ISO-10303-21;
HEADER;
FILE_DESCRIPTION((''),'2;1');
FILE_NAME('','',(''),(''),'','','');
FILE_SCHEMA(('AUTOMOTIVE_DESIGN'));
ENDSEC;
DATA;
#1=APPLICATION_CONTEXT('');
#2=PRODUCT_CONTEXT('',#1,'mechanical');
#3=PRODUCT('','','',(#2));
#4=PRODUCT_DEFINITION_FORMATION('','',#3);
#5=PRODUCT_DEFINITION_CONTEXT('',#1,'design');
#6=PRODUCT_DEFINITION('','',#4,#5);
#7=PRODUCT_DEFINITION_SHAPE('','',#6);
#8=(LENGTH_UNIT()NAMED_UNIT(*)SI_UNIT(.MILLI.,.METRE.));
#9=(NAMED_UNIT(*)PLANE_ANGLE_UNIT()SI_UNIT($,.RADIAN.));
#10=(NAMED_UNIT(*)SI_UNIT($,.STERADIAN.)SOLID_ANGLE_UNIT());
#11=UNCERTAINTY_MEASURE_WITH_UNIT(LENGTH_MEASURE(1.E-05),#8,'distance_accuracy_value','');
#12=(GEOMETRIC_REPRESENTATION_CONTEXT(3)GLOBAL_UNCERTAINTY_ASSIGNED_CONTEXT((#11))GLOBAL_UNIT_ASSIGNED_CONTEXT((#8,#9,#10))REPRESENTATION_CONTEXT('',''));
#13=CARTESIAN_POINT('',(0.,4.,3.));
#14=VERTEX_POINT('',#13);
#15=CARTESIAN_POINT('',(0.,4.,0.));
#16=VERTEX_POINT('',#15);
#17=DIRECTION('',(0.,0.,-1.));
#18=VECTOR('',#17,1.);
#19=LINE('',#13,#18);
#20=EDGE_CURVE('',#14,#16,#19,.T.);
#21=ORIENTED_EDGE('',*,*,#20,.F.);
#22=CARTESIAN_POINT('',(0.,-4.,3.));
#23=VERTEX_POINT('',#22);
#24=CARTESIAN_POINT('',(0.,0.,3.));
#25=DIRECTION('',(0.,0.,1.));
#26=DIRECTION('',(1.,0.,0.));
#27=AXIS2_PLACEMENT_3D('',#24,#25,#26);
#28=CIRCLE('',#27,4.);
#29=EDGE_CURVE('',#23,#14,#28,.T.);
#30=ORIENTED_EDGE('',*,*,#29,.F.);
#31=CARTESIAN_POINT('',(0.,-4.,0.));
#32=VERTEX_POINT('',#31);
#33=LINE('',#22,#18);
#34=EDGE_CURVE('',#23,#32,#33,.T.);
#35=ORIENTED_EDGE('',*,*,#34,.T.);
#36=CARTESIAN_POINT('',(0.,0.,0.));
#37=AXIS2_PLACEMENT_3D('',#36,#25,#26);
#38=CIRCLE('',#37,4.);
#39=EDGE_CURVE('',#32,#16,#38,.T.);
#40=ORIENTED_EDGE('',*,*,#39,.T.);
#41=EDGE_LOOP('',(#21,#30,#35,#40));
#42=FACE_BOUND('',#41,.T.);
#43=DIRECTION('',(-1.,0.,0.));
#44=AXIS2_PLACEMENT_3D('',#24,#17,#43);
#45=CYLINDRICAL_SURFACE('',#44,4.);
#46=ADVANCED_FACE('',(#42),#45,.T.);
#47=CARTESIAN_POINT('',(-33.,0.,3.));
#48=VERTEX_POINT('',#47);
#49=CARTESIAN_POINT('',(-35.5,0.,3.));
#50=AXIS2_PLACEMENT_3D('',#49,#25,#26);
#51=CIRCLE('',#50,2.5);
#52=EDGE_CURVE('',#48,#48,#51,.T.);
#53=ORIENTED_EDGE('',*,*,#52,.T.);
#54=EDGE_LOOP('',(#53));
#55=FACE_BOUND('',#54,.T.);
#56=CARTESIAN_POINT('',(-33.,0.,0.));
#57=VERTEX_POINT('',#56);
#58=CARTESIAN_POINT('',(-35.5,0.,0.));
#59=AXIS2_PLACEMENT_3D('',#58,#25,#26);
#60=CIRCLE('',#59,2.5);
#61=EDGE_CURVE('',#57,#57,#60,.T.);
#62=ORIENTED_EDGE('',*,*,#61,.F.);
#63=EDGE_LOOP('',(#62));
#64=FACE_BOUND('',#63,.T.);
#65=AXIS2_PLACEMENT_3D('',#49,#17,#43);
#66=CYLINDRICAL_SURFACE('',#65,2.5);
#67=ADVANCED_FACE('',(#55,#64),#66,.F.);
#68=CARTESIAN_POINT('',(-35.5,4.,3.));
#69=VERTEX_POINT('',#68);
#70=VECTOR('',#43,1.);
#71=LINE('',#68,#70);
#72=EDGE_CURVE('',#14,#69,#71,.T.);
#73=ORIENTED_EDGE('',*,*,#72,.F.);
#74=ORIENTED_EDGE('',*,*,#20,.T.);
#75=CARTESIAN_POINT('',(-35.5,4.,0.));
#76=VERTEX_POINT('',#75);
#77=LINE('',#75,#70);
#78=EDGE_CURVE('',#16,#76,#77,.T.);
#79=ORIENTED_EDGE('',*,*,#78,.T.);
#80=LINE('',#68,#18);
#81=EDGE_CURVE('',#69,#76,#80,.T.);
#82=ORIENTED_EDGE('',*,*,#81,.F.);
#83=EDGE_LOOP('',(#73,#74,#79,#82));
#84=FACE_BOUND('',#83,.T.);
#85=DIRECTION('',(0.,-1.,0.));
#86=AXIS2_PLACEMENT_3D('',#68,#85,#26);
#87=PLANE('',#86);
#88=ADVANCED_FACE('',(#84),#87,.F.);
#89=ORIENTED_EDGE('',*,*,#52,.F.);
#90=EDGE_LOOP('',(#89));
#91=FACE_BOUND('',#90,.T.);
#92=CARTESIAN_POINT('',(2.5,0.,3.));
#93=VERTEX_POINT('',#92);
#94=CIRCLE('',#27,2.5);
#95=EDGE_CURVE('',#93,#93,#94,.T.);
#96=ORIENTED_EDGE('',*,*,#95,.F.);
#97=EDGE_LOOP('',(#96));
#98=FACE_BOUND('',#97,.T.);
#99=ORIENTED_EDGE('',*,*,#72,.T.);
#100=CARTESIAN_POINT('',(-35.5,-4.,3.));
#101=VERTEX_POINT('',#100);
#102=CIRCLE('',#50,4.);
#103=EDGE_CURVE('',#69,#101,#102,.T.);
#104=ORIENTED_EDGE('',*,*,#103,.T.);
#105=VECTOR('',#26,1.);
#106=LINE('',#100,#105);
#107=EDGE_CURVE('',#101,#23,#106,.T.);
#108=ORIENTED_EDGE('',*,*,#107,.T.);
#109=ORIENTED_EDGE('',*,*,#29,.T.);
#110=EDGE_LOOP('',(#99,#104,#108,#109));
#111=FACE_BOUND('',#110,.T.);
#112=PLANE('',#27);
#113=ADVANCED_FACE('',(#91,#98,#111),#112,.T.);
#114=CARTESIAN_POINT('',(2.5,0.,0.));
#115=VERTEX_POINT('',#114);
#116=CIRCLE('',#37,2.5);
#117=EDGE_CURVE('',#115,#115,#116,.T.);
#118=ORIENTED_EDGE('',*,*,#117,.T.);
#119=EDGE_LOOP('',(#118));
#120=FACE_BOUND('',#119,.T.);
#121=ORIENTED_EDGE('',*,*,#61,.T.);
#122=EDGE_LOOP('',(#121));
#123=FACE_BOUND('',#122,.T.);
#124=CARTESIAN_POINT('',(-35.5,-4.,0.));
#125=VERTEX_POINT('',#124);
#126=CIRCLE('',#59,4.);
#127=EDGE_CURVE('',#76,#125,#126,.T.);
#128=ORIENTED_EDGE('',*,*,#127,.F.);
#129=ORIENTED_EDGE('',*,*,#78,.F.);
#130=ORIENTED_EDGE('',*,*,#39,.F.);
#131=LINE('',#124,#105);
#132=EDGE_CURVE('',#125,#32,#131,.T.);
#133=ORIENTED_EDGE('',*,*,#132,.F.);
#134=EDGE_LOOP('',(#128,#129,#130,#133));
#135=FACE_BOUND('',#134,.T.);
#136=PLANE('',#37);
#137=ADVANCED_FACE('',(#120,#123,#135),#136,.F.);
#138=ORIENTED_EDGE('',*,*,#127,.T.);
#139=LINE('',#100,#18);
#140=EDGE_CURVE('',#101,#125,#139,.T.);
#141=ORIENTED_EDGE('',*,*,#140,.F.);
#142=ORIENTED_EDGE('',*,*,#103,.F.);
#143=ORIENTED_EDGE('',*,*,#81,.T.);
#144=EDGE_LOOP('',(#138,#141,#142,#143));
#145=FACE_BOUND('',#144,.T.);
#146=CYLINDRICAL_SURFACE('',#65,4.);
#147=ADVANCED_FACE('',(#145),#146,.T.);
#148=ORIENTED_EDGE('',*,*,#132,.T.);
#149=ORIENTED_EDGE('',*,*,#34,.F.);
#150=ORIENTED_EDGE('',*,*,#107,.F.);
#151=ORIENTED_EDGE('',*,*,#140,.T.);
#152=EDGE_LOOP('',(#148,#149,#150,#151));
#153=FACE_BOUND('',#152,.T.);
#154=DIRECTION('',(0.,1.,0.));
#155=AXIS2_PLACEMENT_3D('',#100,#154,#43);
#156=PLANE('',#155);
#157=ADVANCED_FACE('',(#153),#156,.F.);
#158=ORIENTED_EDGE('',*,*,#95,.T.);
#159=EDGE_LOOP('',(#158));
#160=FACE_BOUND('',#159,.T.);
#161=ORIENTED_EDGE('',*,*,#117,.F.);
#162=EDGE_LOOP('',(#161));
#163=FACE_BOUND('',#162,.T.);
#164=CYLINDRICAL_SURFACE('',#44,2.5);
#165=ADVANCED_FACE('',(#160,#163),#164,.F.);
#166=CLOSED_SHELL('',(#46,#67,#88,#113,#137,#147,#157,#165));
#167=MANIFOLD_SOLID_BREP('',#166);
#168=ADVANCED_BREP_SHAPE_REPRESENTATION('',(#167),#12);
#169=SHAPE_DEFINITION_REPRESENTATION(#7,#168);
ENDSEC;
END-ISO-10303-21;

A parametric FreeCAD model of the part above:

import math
import FreeCAD as App
import Part
import Sketcher

doc = App.newDocument("Part")
body = doc.addObject("PartDesign::Body", "Body")

# Sketch on XY plane
sketch1 = body.newObject("Sketcher::SketchObject", "Sketch")
sketch1.AttachmentSupport = (doc.getObject("XY_Plane"), [""])
sketch1.MapMode = "FlatFace"
sketch1.addGeometry(Part.LineSegment(App.Vector(0, 4, 0), App.Vector(-35.5, 4, 0)), False)
sketch1.addGeometry(Part.ArcOfCircle(Part.Circle(App.Vector(-35.5, 0, 0), App.Vector(0, 0, 1), 4), math.radians(90), math.radians(270)), False)
sketch1.addGeometry(Part.LineSegment(App.Vector(-35.5, -4, 0), App.Vector(0, -4, 0)), False)
sketch1.addGeometry(Part.ArcOfCircle(Part.Circle(App.Vector(0, 0, 0), App.Vector(0, 0, 1), 4), math.radians(-90), math.radians(90)), False)
sketch1.addGeometry(Part.Circle(App.Vector(0, 0, 0), App.Vector(0, 0, 1), 2.5), False)
sketch1.addGeometry(Part.Circle(App.Vector(-35.5, 0, 0), App.Vector(0, 0, 1), 2.5), False)
sketch1.addConstraint(Sketcher.Constraint("Tangent", 0, 2, 1, 1))
sketch1.addConstraint(Sketcher.Constraint("Tangent", 1, 2, 2, 1))
sketch1.addConstraint(Sketcher.Constraint("Tangent", 2, 2, 3, 1))
sketch1.addConstraint(Sketcher.Constraint("Tangent", 3, 2, 0, 1))
sketch1.addConstraint(Sketcher.Constraint("Horizontal", 0))
sketch1.addConstraint(Sketcher.Constraint("Horizontal", 2))
sketch1.addConstraint(Sketcher.Constraint("Coincident", 3, 3, -1, 1))
sketch1.addConstraint(Sketcher.Constraint("Coincident", 4, 3, -1, 1))
sketch1.addConstraint(Sketcher.Constraint("Coincident", 5, 3, 1, 3))
sketch1.addConstraint(Sketcher.Constraint("Equal", 4, 5))
sketch1.addConstraint(Sketcher.Constraint("Diameter", 4, 5.0))
sketch1.addConstraint(Sketcher.Constraint("Radius", 1, 4.0))
sketch1.addConstraint(Sketcher.Constraint("DistanceX", 0, 2, 0, 1, 35.5))
pad1 = body.newObject("PartDesign::Pad", "Pad")
pad1.Profile = sketch1
pad1.Length = 3

doc.recompute()
